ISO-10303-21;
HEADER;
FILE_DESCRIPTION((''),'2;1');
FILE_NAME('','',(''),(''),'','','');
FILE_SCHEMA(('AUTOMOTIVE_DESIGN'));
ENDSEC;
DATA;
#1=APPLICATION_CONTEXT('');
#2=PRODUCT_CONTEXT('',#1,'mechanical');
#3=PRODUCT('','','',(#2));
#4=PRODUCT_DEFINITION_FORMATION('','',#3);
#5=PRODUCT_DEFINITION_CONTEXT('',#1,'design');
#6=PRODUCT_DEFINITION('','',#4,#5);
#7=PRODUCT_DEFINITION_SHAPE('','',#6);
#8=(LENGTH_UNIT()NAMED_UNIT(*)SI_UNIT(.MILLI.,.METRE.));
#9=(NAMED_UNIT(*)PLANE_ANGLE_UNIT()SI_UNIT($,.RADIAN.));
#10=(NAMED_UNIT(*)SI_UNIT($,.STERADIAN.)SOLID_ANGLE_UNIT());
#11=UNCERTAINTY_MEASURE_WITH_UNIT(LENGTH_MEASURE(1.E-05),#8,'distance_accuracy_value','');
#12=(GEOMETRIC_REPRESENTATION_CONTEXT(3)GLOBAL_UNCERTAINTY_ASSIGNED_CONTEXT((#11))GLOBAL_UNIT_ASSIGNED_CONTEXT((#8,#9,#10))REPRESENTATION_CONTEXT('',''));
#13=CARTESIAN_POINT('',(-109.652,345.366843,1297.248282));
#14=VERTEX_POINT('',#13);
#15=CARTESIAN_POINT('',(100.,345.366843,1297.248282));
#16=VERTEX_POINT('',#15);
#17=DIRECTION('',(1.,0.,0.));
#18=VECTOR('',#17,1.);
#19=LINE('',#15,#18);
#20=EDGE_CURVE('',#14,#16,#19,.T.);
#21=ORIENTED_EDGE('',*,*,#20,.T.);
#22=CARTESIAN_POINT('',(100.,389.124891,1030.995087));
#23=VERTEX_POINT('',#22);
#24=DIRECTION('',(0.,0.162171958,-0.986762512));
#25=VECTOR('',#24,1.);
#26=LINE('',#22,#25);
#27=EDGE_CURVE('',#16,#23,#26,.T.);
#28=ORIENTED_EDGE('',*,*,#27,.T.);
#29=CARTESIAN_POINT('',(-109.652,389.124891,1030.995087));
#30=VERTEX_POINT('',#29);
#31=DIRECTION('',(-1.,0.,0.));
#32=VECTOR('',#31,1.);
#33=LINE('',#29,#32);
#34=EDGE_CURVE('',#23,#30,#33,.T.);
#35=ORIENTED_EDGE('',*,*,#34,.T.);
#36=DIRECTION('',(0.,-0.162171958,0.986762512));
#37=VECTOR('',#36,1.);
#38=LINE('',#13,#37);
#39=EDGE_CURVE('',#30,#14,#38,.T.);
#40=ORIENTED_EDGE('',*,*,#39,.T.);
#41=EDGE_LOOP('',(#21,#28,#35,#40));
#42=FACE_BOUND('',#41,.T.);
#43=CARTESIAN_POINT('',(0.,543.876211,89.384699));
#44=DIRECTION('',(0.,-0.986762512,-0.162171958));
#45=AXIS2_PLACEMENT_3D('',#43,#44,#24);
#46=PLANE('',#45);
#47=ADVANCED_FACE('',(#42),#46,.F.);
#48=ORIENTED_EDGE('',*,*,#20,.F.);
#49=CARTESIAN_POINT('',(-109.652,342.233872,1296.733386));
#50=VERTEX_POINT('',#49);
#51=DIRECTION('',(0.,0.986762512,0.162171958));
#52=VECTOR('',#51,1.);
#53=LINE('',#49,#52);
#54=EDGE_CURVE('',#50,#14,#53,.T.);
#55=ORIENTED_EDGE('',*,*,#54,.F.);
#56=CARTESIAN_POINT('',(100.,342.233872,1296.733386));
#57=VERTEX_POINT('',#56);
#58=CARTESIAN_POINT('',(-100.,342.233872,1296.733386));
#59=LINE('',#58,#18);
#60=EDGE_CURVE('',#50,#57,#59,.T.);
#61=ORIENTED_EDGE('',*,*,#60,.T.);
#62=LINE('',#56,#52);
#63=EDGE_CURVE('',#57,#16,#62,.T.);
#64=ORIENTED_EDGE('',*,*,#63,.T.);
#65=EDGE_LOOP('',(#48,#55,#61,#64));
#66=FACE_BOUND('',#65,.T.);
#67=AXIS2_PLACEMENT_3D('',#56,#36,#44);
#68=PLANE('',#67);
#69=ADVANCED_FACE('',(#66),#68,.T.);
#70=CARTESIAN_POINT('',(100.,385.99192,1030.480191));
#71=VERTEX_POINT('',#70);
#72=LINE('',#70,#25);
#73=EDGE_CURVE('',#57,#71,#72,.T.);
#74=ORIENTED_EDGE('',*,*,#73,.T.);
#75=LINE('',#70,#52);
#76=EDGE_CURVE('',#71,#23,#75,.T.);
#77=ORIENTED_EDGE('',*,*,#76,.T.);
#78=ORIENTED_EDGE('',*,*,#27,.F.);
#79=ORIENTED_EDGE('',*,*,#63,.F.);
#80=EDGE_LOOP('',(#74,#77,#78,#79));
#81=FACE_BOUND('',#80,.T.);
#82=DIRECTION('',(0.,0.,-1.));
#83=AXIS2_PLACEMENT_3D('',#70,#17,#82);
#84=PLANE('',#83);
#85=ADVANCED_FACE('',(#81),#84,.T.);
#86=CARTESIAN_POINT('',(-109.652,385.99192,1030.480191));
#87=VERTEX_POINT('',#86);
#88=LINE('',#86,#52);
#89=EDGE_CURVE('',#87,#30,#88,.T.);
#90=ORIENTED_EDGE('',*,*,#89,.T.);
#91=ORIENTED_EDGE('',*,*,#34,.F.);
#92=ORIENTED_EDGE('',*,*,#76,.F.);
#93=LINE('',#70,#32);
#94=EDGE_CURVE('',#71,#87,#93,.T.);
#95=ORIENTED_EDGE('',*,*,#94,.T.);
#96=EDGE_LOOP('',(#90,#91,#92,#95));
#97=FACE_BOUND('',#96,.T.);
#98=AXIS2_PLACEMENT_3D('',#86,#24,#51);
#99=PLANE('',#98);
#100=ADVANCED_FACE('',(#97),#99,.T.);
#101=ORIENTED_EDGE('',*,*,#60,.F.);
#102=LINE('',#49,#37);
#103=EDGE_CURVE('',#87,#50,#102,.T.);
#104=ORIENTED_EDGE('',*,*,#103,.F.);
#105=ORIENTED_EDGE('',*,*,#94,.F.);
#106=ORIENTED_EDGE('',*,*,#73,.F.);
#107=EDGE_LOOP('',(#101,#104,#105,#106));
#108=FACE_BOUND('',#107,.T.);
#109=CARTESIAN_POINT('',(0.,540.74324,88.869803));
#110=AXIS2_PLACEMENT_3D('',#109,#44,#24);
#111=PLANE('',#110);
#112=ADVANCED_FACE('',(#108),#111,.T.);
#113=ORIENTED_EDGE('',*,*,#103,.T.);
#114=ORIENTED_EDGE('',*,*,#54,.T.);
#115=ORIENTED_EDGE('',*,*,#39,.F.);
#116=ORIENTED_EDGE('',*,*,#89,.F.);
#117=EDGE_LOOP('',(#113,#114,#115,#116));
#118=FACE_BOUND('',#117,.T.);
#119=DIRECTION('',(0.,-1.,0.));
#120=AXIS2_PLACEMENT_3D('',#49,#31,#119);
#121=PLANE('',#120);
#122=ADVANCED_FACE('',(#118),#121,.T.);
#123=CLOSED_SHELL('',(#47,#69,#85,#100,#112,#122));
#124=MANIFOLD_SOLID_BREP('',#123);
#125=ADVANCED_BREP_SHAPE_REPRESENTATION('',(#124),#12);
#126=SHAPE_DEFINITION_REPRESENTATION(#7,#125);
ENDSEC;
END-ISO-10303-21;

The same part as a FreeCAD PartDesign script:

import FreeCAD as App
import Part
import Sketcher

V = App.Vector
Q = App.Units.Quantity

doc = App.newDocument("Part")
body = doc.addObject("PartDesign::Body", "Body")

# Sketch on an angled plane
sketch1 = body.newObject("Sketcher::SketchObject", "Sketch")
sketch1.Placement = App.Placement(V(0, 543.876211, 89.384699), App.Rotation(V(1, 0, 0), V(0, 0.162171958, -0.986762512), V(0, 0.986762512, 0.162171958), "ZXY"))
sketch1.addGeometry([
    Part.LineSegment(V(100, -954.242156, 0), V(-109.652, -954.242156, 0)),
    Part.LineSegment(V(-109.652, -954.242156, 0), V(-109.652, -1224.067156, 0)),
    Part.LineSegment(V(-109.652, -1224.067156, 0), V(100, -1224.067156, 0)),
    Part.LineSegment(V(100, -1224.067156, 0), V(100, -954.242156, 0)),
], False)
sketch1.addConstraint([
    Sketcher.Constraint("Coincident", 0, 2, 1, 1),
    Sketcher.Constraint("Coincident", 1, 2, 2, 1),
    Sketcher.Constraint("Coincident", 2, 2, 3, 1),
    Sketcher.Constraint("Coincident", 3, 2, 0, 1),
    Sketcher.Constraint("Horizontal", 0),
    Sketcher.Constraint("Vertical", 1),
    Sketcher.Constraint("Horizontal", 2),
    Sketcher.Constraint("Vertical", 3),
    Sketcher.Constraint("DistanceX", 0, 2, 0, 1, 209.652),
    Sketcher.Constraint("DistanceY", 1, 2, 1, 1, 269.825),
    Sketcher.Constraint("DistanceX", 0, 2, -1, 1, 109.652),
    Sketcher.Constraint("DistanceY", 0, 2, -1, 1, 954.242156),
])
pad1 = body.newObject("PartDesign::Pad", "Pad")
pad1.Profile = sketch1
pad1.Length = Q("0.125 in")
pad1.Reversed = True

doc.recompute()
